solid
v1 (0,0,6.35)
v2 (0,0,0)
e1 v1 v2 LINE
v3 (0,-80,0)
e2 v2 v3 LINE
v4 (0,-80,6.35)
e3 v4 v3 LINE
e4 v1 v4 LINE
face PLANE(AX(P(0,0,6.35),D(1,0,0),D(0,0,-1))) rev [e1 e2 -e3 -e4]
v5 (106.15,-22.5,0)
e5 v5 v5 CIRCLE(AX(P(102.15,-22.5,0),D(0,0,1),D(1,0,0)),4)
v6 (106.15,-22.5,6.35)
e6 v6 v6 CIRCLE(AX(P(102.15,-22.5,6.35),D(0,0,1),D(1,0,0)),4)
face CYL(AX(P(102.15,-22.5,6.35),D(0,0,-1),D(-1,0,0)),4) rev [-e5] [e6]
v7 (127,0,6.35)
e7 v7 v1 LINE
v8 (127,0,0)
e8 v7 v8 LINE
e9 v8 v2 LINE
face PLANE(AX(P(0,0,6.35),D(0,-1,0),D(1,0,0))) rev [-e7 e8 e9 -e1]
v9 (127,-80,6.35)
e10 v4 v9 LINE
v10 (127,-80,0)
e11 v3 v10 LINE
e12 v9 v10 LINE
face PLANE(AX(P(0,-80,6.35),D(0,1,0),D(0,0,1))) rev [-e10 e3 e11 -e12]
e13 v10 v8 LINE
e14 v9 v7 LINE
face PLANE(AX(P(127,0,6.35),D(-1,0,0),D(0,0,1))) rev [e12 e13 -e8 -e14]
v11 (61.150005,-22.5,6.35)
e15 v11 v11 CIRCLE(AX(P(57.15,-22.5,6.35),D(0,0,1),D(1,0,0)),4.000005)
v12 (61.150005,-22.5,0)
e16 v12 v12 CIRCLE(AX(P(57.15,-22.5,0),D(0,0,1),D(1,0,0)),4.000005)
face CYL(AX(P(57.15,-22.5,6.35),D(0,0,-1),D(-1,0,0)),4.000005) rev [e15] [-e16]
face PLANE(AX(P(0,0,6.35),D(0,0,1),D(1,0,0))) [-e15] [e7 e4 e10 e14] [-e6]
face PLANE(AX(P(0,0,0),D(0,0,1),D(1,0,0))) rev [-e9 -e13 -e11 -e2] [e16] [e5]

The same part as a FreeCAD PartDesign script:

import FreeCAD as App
import Part
import Sketcher

V = App.Vector
Q = App.Units.Quantity


def add_polygon(sketch, points):
    """Adds a closed chain of lines whose ends are joined by coincident constraints."""
    first, n = sketch.GeometryCount, len(points)
    for a, b in zip(points, points[1:] + points[:1]):
        sketch.addGeometry(Part.LineSegment(App.Vector(*a, 0), App.Vector(*b, 0)), False)
    for i in range(n):
        sketch.addConstraint(Sketcher.Constraint("Coincident", first + i, 2, first + (i + 1) % n, 1))

doc = App.newDocument("Part")
body = doc.addObject("PartDesign::Body", "Body")

# Sketch on XY plane
sketch1 = body.newObject("Sketcher::SketchObject", "Sketch")
sketch1.AttachmentSupport = (doc.getObject("XY_Plane"), [""])
sketch1.MapMode = "FlatFace"
add_polygon(sketch1, [(0, 0), (0, -80), (127, -80), (127, 0)])  # lines 0-3
sketch1.addGeometry(Part.Circle(V(57.1, -22.5, 0), V(0, 0, 1), 4), False)  # 4
sketch1.addGeometry(Part.Circle(V(102.2, -22.5, 0), V(0, 0, 1), 4), False)  # 5
sketch1.addConstraint([
    Sketcher.Constraint("Vertical", 0),
    Sketcher.Constraint("Horizontal", 1),
    Sketcher.Constraint("Vertical", 2),
    Sketcher.Constraint("Horizontal", 3),
    Sketcher.Constraint("Coincident", 3, 2, -1, 1),
    Sketcher.Constraint("Horizontal", 4, 3, 5, 3),
    Sketcher.Constraint("Diameter", 5, Q("8 mm")),
    Sketcher.Constraint("DistanceX", 1, 1, 1, 2, Q("127 mm")),
    Sketcher.Constraint("DistanceY", 0, 2, 0, 1, Q("80 mm")),
    Sketcher.Constraint("DistanceX", 4, 3, 5, 3, Q("45 mm")),
    Sketcher.Constraint("DistanceY", 4, 3, -1, 1, Q("22.5 mm")),
    Sketcher.Constraint("Diameter", 4, Q("8.000009 mm")),
    Sketcher.Constraint("DistanceX", -1, 1, 4, 3, Q("57.15 mm")),
])
pad1 = body.newObject("PartDesign::Pad", "Pad")
pad1.Profile = sketch1
pad1.Length = 6.35

doc.recompute()
